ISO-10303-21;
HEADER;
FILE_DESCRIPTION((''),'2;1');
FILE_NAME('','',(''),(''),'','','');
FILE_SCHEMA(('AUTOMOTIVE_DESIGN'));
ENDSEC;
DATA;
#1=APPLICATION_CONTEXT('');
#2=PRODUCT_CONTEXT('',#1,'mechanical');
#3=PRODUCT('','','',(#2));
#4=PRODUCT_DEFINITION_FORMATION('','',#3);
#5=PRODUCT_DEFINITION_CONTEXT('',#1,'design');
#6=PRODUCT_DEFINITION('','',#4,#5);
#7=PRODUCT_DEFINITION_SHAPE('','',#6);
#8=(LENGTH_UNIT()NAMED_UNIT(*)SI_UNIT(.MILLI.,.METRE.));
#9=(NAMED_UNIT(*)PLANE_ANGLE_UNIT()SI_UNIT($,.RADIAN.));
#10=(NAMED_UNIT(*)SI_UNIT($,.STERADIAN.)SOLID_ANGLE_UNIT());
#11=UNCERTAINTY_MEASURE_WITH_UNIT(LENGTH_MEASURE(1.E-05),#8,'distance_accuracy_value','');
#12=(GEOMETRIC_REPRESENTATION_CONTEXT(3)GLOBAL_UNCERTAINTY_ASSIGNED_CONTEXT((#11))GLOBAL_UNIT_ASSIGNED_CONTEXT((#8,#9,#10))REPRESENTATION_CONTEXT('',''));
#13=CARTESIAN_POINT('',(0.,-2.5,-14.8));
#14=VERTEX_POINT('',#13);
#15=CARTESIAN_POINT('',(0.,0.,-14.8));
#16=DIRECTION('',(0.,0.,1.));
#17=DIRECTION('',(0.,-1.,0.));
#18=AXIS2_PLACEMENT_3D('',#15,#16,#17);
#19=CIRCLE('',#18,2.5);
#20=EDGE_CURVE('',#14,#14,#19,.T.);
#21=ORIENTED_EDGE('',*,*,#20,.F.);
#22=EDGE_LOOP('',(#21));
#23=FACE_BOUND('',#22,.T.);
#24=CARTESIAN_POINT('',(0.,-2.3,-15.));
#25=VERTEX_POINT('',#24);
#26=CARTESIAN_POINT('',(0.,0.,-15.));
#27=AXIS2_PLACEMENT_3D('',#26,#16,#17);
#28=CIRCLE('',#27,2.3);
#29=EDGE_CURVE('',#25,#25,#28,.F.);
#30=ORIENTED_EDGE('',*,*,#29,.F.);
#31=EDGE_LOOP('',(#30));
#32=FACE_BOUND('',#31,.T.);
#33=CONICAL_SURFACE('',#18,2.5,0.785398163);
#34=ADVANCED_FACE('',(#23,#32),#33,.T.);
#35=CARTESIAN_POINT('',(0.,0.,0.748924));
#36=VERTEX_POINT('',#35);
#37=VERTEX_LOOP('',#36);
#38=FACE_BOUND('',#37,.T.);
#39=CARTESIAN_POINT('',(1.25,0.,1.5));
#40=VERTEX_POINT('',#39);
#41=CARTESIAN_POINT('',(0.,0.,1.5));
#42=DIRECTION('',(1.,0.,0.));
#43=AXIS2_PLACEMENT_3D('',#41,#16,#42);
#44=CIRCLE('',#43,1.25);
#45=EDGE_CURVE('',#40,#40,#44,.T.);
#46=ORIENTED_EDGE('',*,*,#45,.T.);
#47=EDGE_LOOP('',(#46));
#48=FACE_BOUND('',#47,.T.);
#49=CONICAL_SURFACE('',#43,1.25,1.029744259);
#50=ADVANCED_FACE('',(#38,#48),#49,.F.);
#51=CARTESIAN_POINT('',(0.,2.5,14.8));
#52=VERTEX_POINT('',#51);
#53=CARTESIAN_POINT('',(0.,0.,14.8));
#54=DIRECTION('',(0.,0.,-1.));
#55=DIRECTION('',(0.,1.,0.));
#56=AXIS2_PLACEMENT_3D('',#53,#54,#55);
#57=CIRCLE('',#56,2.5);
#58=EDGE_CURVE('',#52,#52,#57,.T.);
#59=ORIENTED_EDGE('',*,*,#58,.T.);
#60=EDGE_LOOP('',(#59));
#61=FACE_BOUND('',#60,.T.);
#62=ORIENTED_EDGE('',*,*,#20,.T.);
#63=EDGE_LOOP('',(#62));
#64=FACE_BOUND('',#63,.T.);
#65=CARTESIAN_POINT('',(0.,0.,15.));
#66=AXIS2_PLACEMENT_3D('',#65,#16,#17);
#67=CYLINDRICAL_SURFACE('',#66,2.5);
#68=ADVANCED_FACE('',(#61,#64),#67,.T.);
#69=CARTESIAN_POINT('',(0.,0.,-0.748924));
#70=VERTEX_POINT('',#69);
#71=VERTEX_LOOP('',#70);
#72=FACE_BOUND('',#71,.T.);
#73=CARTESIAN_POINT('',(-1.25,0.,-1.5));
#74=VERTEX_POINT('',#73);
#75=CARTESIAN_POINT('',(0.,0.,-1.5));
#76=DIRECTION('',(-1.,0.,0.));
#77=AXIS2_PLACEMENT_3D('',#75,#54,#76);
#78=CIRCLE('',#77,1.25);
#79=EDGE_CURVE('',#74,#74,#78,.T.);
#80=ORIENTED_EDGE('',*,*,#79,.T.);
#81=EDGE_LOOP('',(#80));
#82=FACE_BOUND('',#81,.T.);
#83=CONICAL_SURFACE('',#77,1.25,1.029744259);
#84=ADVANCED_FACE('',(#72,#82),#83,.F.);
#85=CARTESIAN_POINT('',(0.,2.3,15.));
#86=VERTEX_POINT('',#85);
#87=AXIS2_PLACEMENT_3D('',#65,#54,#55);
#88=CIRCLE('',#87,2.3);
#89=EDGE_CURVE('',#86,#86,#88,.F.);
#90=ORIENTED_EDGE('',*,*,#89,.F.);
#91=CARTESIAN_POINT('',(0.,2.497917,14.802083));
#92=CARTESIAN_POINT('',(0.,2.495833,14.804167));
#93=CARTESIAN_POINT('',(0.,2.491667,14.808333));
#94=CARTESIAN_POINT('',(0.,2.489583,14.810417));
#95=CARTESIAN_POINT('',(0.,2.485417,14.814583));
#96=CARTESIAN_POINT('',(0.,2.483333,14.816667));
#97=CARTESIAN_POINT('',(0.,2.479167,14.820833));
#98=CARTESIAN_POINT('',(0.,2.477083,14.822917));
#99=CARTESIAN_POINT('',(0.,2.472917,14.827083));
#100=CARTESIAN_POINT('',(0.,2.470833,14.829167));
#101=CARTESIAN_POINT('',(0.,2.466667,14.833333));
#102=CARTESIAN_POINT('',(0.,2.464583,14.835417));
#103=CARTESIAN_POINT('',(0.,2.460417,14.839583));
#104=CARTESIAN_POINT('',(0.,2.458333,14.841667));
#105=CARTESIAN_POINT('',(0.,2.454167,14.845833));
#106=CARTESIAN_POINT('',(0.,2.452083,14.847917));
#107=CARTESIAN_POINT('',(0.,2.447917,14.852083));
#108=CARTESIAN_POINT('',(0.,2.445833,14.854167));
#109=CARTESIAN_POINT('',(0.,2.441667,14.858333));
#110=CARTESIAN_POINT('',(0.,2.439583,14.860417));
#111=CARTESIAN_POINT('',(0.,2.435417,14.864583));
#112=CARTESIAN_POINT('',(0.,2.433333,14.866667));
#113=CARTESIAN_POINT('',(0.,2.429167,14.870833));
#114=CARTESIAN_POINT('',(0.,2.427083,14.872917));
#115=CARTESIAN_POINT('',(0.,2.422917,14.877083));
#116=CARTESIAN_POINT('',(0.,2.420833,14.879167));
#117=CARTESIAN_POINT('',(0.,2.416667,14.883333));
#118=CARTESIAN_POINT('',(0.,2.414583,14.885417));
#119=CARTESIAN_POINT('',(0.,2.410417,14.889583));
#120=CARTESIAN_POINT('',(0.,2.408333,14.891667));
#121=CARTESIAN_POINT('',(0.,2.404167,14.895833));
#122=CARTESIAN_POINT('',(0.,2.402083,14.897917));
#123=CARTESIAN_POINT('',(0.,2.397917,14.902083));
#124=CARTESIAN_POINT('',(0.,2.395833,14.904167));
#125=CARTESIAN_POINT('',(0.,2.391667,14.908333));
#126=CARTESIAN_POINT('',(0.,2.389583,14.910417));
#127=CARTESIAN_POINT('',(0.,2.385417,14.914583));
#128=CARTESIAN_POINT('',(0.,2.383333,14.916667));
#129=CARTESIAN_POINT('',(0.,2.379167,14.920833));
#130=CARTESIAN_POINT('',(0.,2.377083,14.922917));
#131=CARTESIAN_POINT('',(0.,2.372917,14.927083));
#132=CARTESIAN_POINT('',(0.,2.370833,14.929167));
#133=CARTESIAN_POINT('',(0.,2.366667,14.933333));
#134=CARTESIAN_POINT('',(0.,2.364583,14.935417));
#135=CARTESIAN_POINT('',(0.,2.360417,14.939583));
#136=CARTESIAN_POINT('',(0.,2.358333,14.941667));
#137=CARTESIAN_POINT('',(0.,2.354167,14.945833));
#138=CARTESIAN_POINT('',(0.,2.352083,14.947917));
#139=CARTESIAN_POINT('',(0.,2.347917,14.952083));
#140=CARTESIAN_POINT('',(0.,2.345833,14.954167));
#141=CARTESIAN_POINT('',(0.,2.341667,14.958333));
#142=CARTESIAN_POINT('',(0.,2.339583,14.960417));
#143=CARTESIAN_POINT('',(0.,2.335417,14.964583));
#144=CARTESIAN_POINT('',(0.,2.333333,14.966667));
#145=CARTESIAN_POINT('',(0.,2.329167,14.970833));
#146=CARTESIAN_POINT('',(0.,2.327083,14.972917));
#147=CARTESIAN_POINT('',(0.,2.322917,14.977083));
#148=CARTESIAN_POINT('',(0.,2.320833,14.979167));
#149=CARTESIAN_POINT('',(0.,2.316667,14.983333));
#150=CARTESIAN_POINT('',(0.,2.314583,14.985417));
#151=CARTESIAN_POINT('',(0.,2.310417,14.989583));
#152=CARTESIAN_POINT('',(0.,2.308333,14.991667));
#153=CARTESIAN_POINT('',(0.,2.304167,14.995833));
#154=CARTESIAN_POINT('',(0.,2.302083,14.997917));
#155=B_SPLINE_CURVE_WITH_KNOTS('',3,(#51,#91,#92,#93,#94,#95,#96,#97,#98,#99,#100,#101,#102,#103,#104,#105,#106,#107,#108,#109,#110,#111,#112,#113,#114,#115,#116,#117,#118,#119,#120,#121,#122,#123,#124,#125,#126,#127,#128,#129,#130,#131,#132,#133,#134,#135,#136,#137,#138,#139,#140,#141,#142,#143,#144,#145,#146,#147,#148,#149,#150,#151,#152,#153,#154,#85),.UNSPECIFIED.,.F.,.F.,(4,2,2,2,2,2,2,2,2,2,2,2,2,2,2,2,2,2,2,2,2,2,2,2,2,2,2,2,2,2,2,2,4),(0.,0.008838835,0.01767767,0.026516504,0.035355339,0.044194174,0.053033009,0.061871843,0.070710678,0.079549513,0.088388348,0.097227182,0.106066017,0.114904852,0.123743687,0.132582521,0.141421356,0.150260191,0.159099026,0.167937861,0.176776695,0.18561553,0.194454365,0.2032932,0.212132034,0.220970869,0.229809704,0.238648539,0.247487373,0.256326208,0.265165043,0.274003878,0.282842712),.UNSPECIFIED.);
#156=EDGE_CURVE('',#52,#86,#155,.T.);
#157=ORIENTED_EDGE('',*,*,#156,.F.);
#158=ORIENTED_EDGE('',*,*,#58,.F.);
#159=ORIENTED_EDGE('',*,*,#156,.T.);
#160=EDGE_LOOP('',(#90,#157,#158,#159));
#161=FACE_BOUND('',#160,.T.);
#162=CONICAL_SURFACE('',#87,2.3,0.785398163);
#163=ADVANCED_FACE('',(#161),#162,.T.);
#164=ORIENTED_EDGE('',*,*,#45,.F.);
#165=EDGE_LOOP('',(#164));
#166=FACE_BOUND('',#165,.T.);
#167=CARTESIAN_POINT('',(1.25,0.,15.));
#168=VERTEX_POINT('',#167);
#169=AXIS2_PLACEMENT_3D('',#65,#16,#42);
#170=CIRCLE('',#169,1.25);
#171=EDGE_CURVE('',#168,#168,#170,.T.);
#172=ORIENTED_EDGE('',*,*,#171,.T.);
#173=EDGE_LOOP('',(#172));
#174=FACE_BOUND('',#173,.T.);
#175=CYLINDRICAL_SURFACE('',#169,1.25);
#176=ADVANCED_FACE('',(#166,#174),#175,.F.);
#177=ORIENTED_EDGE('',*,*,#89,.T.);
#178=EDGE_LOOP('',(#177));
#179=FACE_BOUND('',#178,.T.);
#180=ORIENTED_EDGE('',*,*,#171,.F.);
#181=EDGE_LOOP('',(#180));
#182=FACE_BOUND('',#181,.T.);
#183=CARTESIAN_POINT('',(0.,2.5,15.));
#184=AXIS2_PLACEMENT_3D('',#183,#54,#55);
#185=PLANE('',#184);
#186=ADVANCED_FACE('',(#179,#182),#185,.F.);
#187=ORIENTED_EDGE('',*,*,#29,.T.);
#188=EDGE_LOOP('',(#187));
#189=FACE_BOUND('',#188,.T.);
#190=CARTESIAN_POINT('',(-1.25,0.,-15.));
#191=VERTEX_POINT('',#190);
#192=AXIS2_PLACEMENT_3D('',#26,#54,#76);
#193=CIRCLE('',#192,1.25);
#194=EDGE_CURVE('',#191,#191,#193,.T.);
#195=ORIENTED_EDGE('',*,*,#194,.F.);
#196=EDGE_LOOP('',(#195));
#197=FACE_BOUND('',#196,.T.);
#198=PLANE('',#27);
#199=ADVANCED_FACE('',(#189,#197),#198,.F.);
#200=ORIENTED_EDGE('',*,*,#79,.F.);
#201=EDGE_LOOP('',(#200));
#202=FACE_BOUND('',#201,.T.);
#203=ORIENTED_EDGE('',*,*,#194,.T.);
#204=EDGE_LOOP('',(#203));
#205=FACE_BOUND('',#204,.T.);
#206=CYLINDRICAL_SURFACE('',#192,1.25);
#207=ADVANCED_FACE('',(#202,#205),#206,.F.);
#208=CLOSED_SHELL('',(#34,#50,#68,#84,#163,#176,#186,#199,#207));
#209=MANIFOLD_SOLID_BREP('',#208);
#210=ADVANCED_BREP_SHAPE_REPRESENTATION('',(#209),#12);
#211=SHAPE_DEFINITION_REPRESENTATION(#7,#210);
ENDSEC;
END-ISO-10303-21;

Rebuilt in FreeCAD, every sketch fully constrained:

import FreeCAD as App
import Part
import Sketcher
from FreeCAD import Vector
Q = App.Units.Quantity


def edges_at(feature, points):
    """Names of the edges that pass closest to the given points."""
    edges = feature.Shape.Edges
    near = lambda p: min(range(len(edges)), key=lambda i: edges[i].distToShape(Part.Vertex(*p))[0])
    return sorted({f"Edge{near(p) + 1}" for p in points})


def add_polygon(sketch, points):
    """Adds a closed chain of lines whose ends are joined by coincident constraints."""
    first, n = sketch.GeometryCount, len(points)
    for a, b in zip(points, points[1:] + points[:1]):
        sketch.addGeometry(Part.LineSegment(App.Vector(*a, 0), App.Vector(*b, 0)), False)
    for i in range(n):
        sketch.addConstraint(Sketcher.Constraint("Coincident", first + i, 2, first + (i + 1) % n, 1))

doc = App.newDocument("Part")
body = doc.addObject("PartDesign::Body", "Body")

# Sketch on YZ plane
sketch1 = body.newObject("Sketcher::SketchObject", "Sketch")
sketch1.AttachmentSupport = (doc.getObject("YZ_Plane"), [""])
sketch1.MapMode = "FlatFace"
add_polygon(sketch1, [(2.5, 15), (0, 15), (0, -15), (2.5, -15)])  # lines 0-3
sketch1.addConstraint([
    Sketcher.Constraint("Horizontal", 0),
    Sketcher.Constraint("Vertical", 1),
    Sketcher.Constraint("Horizontal", 2),
    Sketcher.Constraint("Vertical", 3),
    Sketcher.Constraint("Symmetric", 0, 2, 1, 2, -1, 1),
    Sketcher.Constraint("DistanceY", 1, 2, 1, 1, Q("30 mm")),
    Sketcher.Constraint("DistanceX", 0, 2, 0, 1, Q("2.5 mm")),
])
revolution = body.newObject("PartDesign::Revolution", "Revolution")
revolution.Profile = sketch1
revolution.ReferenceAxis = (sketch1, ["V_Axis"])
revolution.Angle = 360

# Sketch on YZ plane
sketch2 = body.newObject("Sketcher::SketchObject", "Sketch001")
sketch2.AttachmentSupport = (doc.getObject("YZ_Plane"), [""])
sketch2.MapMode = "FlatFace"
add_polygon(sketch2, [(0, 0.7), (0, 15), (-1.2, 15), (-1.2, 1.5)])  # lines 0-3
sketch2.addConstraint([
    Sketcher.Constraint("Vertical", 0),
    Sketcher.Constraint("Horizontal", 1),
    Sketcher.Constraint("Vertical", 2),
    Sketcher.Constraint("PointOnObject", 0, 2, -2),
    Sketcher.Constraint("Angle", 3, Q("-31 deg")),
    Sketcher.Constraint("DistanceY", 2, 2, 2, 1, Q("13.5 mm")),
    Sketcher.Constraint("DistanceY", -1, 1, 0, 2, Q("15 mm")),
    Sketcher.Constraint("DistanceX", 1, 2, 1, 1, Q("1.25 mm")),
])
groove = body.newObject("PartDesign::Groove", "Groove")
groove.Profile = sketch2
groove.ReferenceAxis = (sketch2, ["V_Axis"])
groove.Angle = 360
doc.recompute()

mirrored = body.newObject("PartDesign::Mirrored", "Mirrored")
mirrored.Originals = [groove]
mirrored.MirrorPlane = (doc.getObject("XY_Plane"), [""])
body.Tip = mirrored
doc.recompute()

chamfer = body.newObject("PartDesign::Chamfer", "Chamfer")
chamfer.Base = (mirrored, edges_at(mirrored, [(0, 2.5, -15), (0, 2.5, 15)]))
chamfer.Size = 0.2

doc.recompute()
